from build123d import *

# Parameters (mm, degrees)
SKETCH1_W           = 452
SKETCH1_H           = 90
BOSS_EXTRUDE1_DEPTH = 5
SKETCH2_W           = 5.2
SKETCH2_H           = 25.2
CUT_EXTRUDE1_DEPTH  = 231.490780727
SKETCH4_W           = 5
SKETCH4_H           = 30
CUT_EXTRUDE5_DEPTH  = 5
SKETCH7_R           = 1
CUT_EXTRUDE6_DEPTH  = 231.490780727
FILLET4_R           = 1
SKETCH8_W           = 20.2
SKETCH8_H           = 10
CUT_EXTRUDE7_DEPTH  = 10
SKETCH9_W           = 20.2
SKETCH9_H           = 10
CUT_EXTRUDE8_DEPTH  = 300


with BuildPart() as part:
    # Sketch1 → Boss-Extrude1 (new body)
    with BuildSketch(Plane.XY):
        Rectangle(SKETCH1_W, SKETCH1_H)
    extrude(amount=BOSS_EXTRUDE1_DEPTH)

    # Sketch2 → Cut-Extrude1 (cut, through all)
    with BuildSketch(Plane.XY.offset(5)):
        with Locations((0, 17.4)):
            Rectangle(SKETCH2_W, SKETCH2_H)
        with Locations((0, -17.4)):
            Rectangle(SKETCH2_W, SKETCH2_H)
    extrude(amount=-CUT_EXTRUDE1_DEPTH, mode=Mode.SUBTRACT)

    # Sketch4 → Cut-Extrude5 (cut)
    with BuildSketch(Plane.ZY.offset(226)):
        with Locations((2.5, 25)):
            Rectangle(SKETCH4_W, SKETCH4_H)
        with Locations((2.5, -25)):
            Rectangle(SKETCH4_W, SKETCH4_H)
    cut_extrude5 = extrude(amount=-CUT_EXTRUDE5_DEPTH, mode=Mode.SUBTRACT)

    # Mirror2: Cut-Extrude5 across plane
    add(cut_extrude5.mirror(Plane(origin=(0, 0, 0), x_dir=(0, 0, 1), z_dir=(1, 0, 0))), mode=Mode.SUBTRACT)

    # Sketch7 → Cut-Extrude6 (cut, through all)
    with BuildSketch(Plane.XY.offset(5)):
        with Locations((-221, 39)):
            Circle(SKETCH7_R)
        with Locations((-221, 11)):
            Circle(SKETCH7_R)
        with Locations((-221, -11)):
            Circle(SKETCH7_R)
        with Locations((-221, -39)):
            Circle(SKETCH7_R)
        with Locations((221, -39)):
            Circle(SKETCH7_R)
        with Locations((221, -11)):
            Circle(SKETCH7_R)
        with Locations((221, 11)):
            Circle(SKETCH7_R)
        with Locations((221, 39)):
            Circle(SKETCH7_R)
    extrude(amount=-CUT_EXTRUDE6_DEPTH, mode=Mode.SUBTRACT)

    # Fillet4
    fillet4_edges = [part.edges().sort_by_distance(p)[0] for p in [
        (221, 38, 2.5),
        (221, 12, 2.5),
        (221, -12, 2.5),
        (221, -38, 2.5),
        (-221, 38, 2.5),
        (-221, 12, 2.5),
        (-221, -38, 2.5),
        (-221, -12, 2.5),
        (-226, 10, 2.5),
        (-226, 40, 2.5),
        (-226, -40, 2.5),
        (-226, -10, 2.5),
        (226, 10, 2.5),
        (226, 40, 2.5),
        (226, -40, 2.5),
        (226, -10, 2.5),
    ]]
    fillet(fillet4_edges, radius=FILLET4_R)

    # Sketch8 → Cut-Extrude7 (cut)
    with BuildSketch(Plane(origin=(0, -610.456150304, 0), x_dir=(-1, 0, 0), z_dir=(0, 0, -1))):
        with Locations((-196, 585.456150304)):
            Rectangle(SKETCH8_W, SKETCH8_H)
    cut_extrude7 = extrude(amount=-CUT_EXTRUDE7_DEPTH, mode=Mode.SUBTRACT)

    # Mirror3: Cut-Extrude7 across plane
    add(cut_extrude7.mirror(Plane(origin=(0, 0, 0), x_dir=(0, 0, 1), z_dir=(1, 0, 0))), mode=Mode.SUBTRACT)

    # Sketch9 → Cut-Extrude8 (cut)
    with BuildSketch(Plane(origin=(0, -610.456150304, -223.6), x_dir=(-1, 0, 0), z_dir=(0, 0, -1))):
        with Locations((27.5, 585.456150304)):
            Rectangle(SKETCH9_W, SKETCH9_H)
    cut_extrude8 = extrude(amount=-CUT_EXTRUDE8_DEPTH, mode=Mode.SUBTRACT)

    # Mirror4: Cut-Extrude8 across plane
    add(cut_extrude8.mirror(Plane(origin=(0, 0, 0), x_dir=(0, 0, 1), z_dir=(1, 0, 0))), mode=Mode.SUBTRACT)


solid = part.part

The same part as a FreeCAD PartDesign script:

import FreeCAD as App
import Part
import Sketcher
from FreeCAD import Vector
Q = App.Units.Quantity


def edges_at(feature, points):
    """Names of the edges that pass closest to the given points."""
    edges = feature.Shape.Edges
    near = lambda p: min(range(len(edges)), key=lambda i: edges[i].distToShape(Part.Vertex(*p))[0])
    return sorted({f"Edge{near(p) + 1}" for p in points})


def add_polygon(sketch, points):
    """Adds a closed chain of lines whose ends are joined by coincident constraints."""
    first, n = sketch.GeometryCount, len(points)
    for a, b in zip(points, points[1:] + points[:1]):
        sketch.addGeometry(Part.LineSegment(App.Vector(*a, 0), App.Vector(*b, 0)), False)
    for i in range(n):
        sketch.addConstraint(Sketcher.Constraint("Coincident", first + i, 2, first + (i + 1) % n, 1))

doc = App.newDocument("Part")
body = doc.addObject("PartDesign::Body", "Body")

sketch1 = body.newObject("Sketcher::SketchObject", "Sketch")
sketch1.AttachmentSupport = (doc.getObject("XY_Plane"), [""])
sketch1.MapMode = "FlatFace"
add_polygon(sketch1, [(-226, 45), (-226, -45), (226, -45), (226, 45)])
sketch1.addConstraint([
    Sketcher.Constraint("Vertical", 0),
    Sketcher.Constraint("Horizontal", 1),
    Sketcher.Constraint("Vertical", 2),
    Sketcher.Constraint("Horizontal", 3),
    Sketcher.Constraint("Symmetric", 0, 2, 2, 2, -1, 1),
    Sketcher.Constraint("DistanceX", 1, 1, 1, 2, Q("452 mm")),
    Sketcher.Constraint("DistanceY", 0, 2, 0, 1, Q("90 mm")),
])
pad1 = body.newObject("PartDesign::Pad", "Pad")
pad1.Profile = sketch1
pad1.Length = 5

sketch2 = body.newObject("Sketcher::SketchObject", "Sketch001")
sketch2.AttachmentSupport = (doc.getObject("XY_Plane"), [""])
sketch2.MapMode = "FlatFace"
sketch2.AttachmentOffset = App.Placement(Vector(0, 0, 5), App.Rotation())
add_polygon(sketch2, [(-3, 30), (-3, 5), (3, 5), (3, 30)])
add_polygon(sketch2, [(-3, -5), (-3, -30), (3, -30), (3, -5)])
sketch2.addConstraint([
    Sketcher.Constraint("Vertical", 0),
    Sketcher.Constraint("Horizontal", 1),
    Sketcher.Constraint("Vertical", 2),
    Sketcher.Constraint("Horizontal", 3),
    Sketcher.Constraint("Vertical", 4),
    Sketcher.Constraint("Horizontal", 5),
    Sketcher.Constraint("Vertical", 6),
    Sketcher.Constraint("Horizontal", 7),
    Sketcher.Constraint("Symmetric", 2, 2, 4, 2, -1, 1),
    Sketcher.Constraint("Symmetric", 0, 2, 6, 2, -1, 1),
    Sketcher.Constraint("Vertical", 3, 2, 4, 2),
    Sketcher.Constraint("DistanceX", 1, 1, 1, 2, Q("5.2 mm")),
    Sketcher.Constraint("DistanceY", 0, 2, 0, 1, Q("25.2 mm")),
    Sketcher.Constraint("DistanceY", -1, 1, 2, 2, Q("30 mm")),
])
pocket1 = body.newObject("PartDesign::Pocket", "Pocket")
pocket1.Profile = sketch2
pocket1.Type = "ThroughAll"

sketch3 = body.newObject("Sketcher::SketchObject", "Sketch002")
sketch3.AttachmentSupport = (doc.getObject("YZ_Plane"), [""])
sketch3.MapMode = "FlatFace"
sketch3.AttachmentOffset = App.Placement(Vector(0, 0, -226), App.Rotation())
add_polygon(sketch3, [(40, 0), (10, 0), (10, 5), (40, 5)])
add_polygon(sketch3, [(-10, 0), (-40, 0), (-40, 5), (-10, 5)])
sketch3.addConstraint([
    Sketcher.Constraint("Horizontal", 0),
    Sketcher.Constraint("Vertical", 1),
    Sketcher.Constraint("Horizontal", 2),
    Sketcher.Constraint("Vertical", 3),
    Sketcher.Constraint("Horizontal", 4),
    Sketcher.Constraint("Vertical", 5),
    Sketcher.Constraint("Horizontal", 6),
    Sketcher.Constraint("Vertical", 7),
    Sketcher.Constraint("Symmetric", 3, 2, 4, 2, -1, 1),
    Sketcher.Constraint("Symmetric", 1, 2, 6, 2, -2),
    Sketcher.Constraint("PointOnObject", 0, 2, -1),
    Sketcher.Constraint("DistanceX", 0, 2, 0, 1, Q("30 mm")),
    Sketcher.Constraint("DistanceY", 1, 1, 1, 2, Q("5 mm")),
    Sketcher.Constraint("DistanceX", -1, 1, 0, 2, Q("10 mm")),
])
pocket2 = body.newObject("PartDesign::Pocket", "Pocket001")
pocket2.Profile = sketch3
pocket2.Length = 5
pocket2.Reversed = True
doc.recompute()

mirrored = body.newObject("PartDesign::Mirrored", "Mirrored")
mirrored.Originals = [pocket2]
mirrored.MirrorPlane = (doc.getObject("YZ_Plane"), [""])
body.Tip = mirrored

sketch4 = body.newObject("Sketcher::SketchObject", "Sketch003")
sketch4.AttachmentSupport = (doc.getObject("XY_Plane"), [""])
sketch4.MapMode = "FlatFace"
sketch4.AttachmentOffset = App.Placement(Vector(0, 0, 5), App.Rotation())
sketch4.addGeometry([
    Part.Circle(Vector(-221, 39, 0), Vector(0, 0, 1), 1),
    Part.Circle(Vector(-221, 11, 0), Vector(0, 0, 1), 1),
    Part.Circle(Vector(-221, -11, 0), Vector(0, 0, 1), 1),
    Part.Circle(Vector(-221, -39, 0), Vector(0, 0, 1), 1),
    Part.Circle(Vector(221, -39, 0), Vector(0, 0, 1), 1),
    Part.Circle(Vector(221, -11, 0), Vector(0, 0, 1), 1),
    Part.Circle(Vector(221, 11, 0), Vector(0, 0, 1), 1),
    Part.Circle(Vector(221, 39, 0), Vector(0, 0, 1), 1),
], False)
sketch4.addConstraint([
    Sketcher.Constraint("Equal", 0, 1),
    Sketcher.Constraint("Equal", 1, 2),
    Sketcher.Constraint("Equal", 2, 3),
    Sketcher.Constraint("Equal", 3, 4),
    Sketcher.Constraint("Equal", 4, 5),
    Sketcher.Constraint("Equal", 5, 6),
    Sketcher.Constraint("Equal", 6, 7),
    Sketcher.Constraint("Symmetric", 0, 3, 4, 3, -1, 1),
    Sketcher.Constraint("Symmetric", 1, 3, 5, 3, -1, 1),
    Sketcher.Constraint("Symmetric", 2, 3, 6, 3, -1, 1),
    Sketcher.Constraint("Symmetric", 3, 3, 7, 3, -1, 1),
    Sketcher.Constraint("Symmetric", 3, 3, 4, 3, -2),
    Sketcher.Constraint("Symmetric", 2, 3, 5, 3, -2),
    Sketcher.Constraint("Vertical", 0, 3, 1, 3),
    Sketcher.Constraint("Diameter", 0, Q("2 mm")),
    Sketcher.Constraint("DistanceX", 0, 3, -1, 1, Q("221 mm")),
    Sketcher.Constraint("DistanceY", -1, 1, 0, 3, Q("39 mm")),
    Sketcher.Constraint("DistanceY", -1, 1, 1, 3, Q("11 mm")),
])
pocket3 = body.newObject("PartDesign::Pocket", "Pocket002")
pocket3.Profile = sketch4
pocket3.Type = "ThroughAll"
doc.recompute()

fillet = body.newObject("PartDesign::Fillet", "Fillet")
fillet.Base = (pocket3, edges_at(pocket3, [
    (221, 38, 2.5),
    (221, 12, 2.5),
    (221, -12, 2.5),
    (221, -38, 2.5),
    (-221, 38, 2.5),
    (-221, 12, 2.5),
    (-221, -38, 2.5),
    (-221, -12, 2.5),
    (-226, 10, 2.5),
    (-226, 40, 2.5),
    (-226, -40, 2.5),
    (-226, -10, 2.5),
    (226, 10, 2.5),
    (226, 40, 2.5),
    (226, -40, 2.5),
    (226, -10, 2.5),
]))
fillet.Radius = 1

sketch5 = body.newObject("Sketcher::SketchObject", "Sketch004")
sketch5.AttachmentSupport = (doc.getObject("XY_Plane"), [""])
sketch5.MapMode = "FlatFace"
add_polygon(sketch5, [(206, -20), (206, -30), (186, -30), (186, -20)])
sketch5.addConstraint([
    Sketcher.Constraint("Vertical", 0),
    Sketcher.Constraint("Horizontal", 1),
    Sketcher.Constraint("Vertical", 2),
    Sketcher.Constraint("Horizontal", 3),
    Sketcher.Constraint("DistanceY", 0, 2, 0, 1, Q("10 mm")),
    Sketcher.Constraint("DistanceX", 1, 2, 1, 1, Q("20.2 mm")),
    Sketcher.Constraint("DistanceY", 0, 2, -1, 1, Q("30 mm")),
    Sketcher.Constraint("DistanceX", -1, 1, 0, 2, Q("206.1 mm")),
])
pocket4 = body.newObject("PartDesign::Pocket", "Pocket003")
pocket4.Profile = sketch5
pocket4.Length = 10
pocket4.Reversed = True
doc.recompute()

mirrored2 = body.newObject("PartDesign::Mirrored", "Mirrored001")
mirrored2.Originals = [pocket4]
mirrored2.MirrorPlane = (doc.getObject("YZ_Plane"), [""])
body.Tip = mirrored2

sketch6 = body.newObject("Sketcher::SketchObject", "Sketch005")
sketch6.AttachmentSupport = (doc.getObject("XY_Plane"), [""])
sketch6.MapMode = "FlatFace"
sketch6.AttachmentOffset = App.Placement(Vector(0, 0, -223.6), App.Rotation())
add_polygon(sketch6, [(-17, -20), (-17, -30), (-38, -30), (-38, -20)])
sketch6.addConstraint([
    Sketcher.Constraint("Vertical", 0),
    Sketcher.Constraint("Horizontal", 1),
    Sketcher.Constraint("Vertical", 2),
    Sketcher.Constraint("Horizontal", 3),
    Sketcher.Constraint("DistanceY", 0, 2, 0, 1, Q("10 mm")),
    Sketcher.Constraint("DistanceX", 1, 2, 1, 1, Q("20.2 mm")),
    Sketcher.Constraint("DistanceY", 0, 2, -1, 1, Q("30 mm")),
    Sketcher.Constraint("DistanceX", 0, 2, -1, 1, Q("17.4 mm")),
])
pocket5 = body.newObject("PartDesign::Pocket", "Pocket004")
pocket5.Profile = sketch6
pocket5.Length = 300
pocket5.Reversed = True
doc.recompute()

mirrored3 = body.newObject("PartDesign::Mirrored", "Mirrored002")
mirrored3.Originals = [pocket5]
mirrored3.MirrorPlane = (doc.getObject("YZ_Plane"), [""])
body.Tip = mirrored3

doc.recompute()
